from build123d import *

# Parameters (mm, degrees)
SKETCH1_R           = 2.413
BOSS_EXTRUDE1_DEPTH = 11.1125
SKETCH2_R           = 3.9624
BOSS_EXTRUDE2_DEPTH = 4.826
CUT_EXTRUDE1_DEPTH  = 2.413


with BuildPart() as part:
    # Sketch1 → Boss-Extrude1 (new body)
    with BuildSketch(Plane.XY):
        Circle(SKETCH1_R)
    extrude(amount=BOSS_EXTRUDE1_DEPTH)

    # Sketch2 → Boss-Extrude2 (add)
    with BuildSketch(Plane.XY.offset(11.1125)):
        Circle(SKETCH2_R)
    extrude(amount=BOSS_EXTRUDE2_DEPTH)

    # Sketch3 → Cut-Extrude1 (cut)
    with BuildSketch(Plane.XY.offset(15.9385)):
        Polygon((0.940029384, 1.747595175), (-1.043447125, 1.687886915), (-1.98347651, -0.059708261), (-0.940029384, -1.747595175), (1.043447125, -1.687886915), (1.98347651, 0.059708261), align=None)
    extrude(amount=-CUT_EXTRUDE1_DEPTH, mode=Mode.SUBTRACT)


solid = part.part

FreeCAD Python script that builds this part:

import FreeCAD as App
import Part
import Sketcher
Q = App.Units.Quantity

doc = App.newDocument("Part")
params = doc.addObject("Spreadsheet::Sheet", "Params")
for row, (alias, value) in enumerate([
    ("sketch1_diameter", "0.19 in"),
    ("pad1_length", "0.4375 in"),
    ("sketch2_diameter", "0.312 in"),
    ("pad2_length", "0.19 in"),
    ("sketch3_length", "0.078125 in"),
    ("pocket1_length", "0.095 in"),
], start=1):
    params.set(f"A{row}", alias)
    params.set(f"B{row}", "=" + value)
    params.setAlias(f"B{row}", alias)

body = doc.addObject("PartDesign::Body", "Body")

# Sketch on XY plane
sketch1 = body.newObject("Sketcher::SketchObject", "Sketch")
sketch1.AttachmentSupport = (doc.getObject("XY_Plane"), [""])
sketch1.MapMode = "FlatFace"
sketch1.addGeometry(Part.Circle(App.Vector(0, 0, 0), App.Vector(0, 0, 1), 2.413), False)
sketch1.addConstraint([
    Sketcher.Constraint("Coincident", 0, 3, -1, 1),
    Sketcher.Constraint("Diameter", 0, Q("0.19 in")),
])
sketch1.setExpression("Constraints[1]", "Params.sketch1_diameter")
pad1 = body.newObject("PartDesign::Pad", "Pad")
pad1.Profile = sketch1
pad1.setExpression("Length", "Params.pad1_length")

# Sketch on XY plane
sketch2 = body.newObject("Sketcher::SketchObject", "Sketch001")
sketch2.AttachmentSupport = (doc.getObject("XY_Plane"), [""])
sketch2.MapMode = "FlatFace"
sketch2.AttachmentOffset = App.Placement(App.Vector(0, 0, 0.4375 * 25.4), App.Rotation())
sketch2.addGeometry(Part.Circle(App.Vector(0, 0, 0), App.Vector(0, 0, 1), 3.9624), False)
sketch2.addConstraint([
    Sketcher.Constraint("Coincident", 0, 3, -1, 1),
    Sketcher.Constraint("Diameter", 0, Q("0.312 in")),
])
sketch2.setExpression("Constraints[1]", "Params.sketch2_diameter")
pad2 = body.newObject("PartDesign::Pad", "Pad001")
pad2.Profile = sketch2
pad2.setExpression("Length", "Params.pad2_length")

# Sketch on XY plane
sketch3 = body.newObject("Sketcher::SketchObject", "Sketch002")
sketch3.AttachmentSupport = (doc.getObject("XY_Plane"), [""])
sketch3.MapMode = "FlatFace"
sketch3.AttachmentOffset = App.Placement(App.Vector(0, 0, 0.6275 * 25.4), App.Rotation())
sketch3.addGeometry([
    Part.LineSegment(App.Vector(0.940029, 1.747595, 0), App.Vector(-1.043447, 1.687887, 0)),  # 0
    Part.LineSegment(App.Vector(-1.043447, 1.687887, 0), App.Vector(-1.983477, -0.059708, 0)),  # 1
    Part.LineSegment(App.Vector(-1.983477, -0.059708, 0), App.Vector(-0.940029, -1.747595, 0)),  # 2
    Part.LineSegment(App.Vector(-0.940029, -1.747595, 0), App.Vector(1.043447, -1.687887, 0)),  # 3
    Part.LineSegment(App.Vector(1.043447, -1.687887, 0), App.Vector(1.983477, 0.059708, 0)),  # 4
    Part.LineSegment(App.Vector(1.983477, 0.059708, 0), App.Vector(0.940029, 1.747595, 0)),  # 5
], False)
sketch3.addConstraint([
    Sketcher.Constraint("Coincident", 0, 2, 1, 1),
    Sketcher.Constraint("Coincident", 1, 2, 2, 1),
    Sketcher.Constraint("Coincident", 2, 2, 3, 1),
    Sketcher.Constraint("Coincident", 3, 2, 4, 1),
    Sketcher.Constraint("Coincident", 4, 2, 5, 1),
    Sketcher.Constraint("Coincident", 5, 2, 0, 1),
    Sketcher.Constraint("Symmetric", 0, 2, 3, 2, -1, 1),
    Sketcher.Constraint("Symmetric", 1, 2, 4, 2, -1, 1),
    Sketcher.Constraint("Symmetric", 2, 2, 5, 2, -1, 1),
    Sketcher.Constraint("Equal", 0, 1),
    Sketcher.Constraint("Equal", 1, 2),
    Sketcher.Constraint("Distance", 0, Q("0.078125 in")),
    Sketcher.Constraint("DistanceY", 1, 2, -1, 1, Q("0.059708 mm")),
    Sketcher.Constraint("DistanceX", 2, 2, -1, 1, Q("0.940029 mm")),
    Sketcher.Constraint("DistanceX", 1, 2, 0, 2, Q("0.940029 mm")),
])
sketch3.setExpression("Constraints[11]", "Params.sketch3_length")
pocket1 = body.newObject("PartDesign::Pocket", "Pocket")
pocket1.Profile = sketch3
pocket1.setExpression("Length", "Params.pocket1_length")

doc.recompute()
